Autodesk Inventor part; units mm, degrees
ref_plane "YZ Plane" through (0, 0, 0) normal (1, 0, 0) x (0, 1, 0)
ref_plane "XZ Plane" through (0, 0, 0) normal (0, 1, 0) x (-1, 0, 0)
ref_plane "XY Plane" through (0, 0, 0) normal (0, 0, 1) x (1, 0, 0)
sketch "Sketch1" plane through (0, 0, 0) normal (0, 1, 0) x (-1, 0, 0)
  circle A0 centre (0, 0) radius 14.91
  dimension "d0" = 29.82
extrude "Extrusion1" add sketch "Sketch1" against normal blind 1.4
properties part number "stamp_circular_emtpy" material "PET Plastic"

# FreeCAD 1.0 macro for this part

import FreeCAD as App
import Part
import Sketcher
Q = App.Units.Quantity

doc = App.newDocument("Part")
body = doc.addObject("PartDesign::Body", "Body")

sketch1 = body.newObject("Sketcher::SketchObject", "Sketch")
sketch1.AttachmentSupport = (doc.getObject("XZ_Plane"), [""])
sketch1.MapMode = "FlatFace"
sketch1.addGeometry(Part.Circle(App.Vector(0, 0, 0), App.Vector(0, 0, 1), 15), False)
sketch1.addConstraint(Sketcher.Constraint("Coincident", 0, 3, -1, 1))
sketch1.addConstraint(Sketcher.Constraint("Diameter", 0, Q("29.82 mm")))
pad1 = body.newObject("PartDesign::Pad", "Pad")
pad1.Profile = sketch1
pad1.Length = 1.4

doc.recompute()
